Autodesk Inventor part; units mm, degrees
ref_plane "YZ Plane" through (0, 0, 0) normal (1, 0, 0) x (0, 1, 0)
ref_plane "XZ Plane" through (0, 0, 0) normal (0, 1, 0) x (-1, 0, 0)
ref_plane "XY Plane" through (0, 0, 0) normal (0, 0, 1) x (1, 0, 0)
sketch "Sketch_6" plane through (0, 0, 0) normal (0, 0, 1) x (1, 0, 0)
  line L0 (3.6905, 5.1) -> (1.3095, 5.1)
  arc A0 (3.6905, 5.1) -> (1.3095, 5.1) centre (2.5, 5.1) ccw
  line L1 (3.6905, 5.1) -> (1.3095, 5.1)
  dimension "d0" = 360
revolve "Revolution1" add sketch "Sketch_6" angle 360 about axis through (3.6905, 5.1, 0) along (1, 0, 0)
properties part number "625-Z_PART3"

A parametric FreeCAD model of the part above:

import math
import FreeCAD as App
import Part
import Sketcher

V = App.Vector

doc = App.newDocument("Part")
body = doc.addObject("PartDesign::Body", "Body")

sketch1 = doc.addObject("Sketcher::SketchObject", "Sketch")
body.addObject(sketch1)
sketch1.AttachmentSupport = (doc.XY_Plane, [""])
sketch1.MapMode = "FlatFace"
sketch1.addGeometry(Part.LineSegment(V(1.3, 5.1, 0), V(3.7, 5.1, 0)), False)
sketch1.addGeometry(Part.ArcOfCircle(Part.Circle(V(2.5, 5.1, 0), V(0, 0, 1), 1.2), math.radians(0), math.radians(180)), False)
sketch1.addGeometry(Part.LineSegment(V(1.3, 5.1, 0), V(3.7, 5.1, 0)), True)
sketch1.addConstraint(Sketcher.Constraint("Coincident", 0, 1, 1, 2))
sketch1.addConstraint(Sketcher.Constraint("Coincident", 1, 1, 0, 2))
sketch1.addConstraint(Sketcher.Constraint("Horizontal", 0))
sketch1.addConstraint(Sketcher.Constraint("Horizontal", 2))
sketch1.addConstraint(Sketcher.Constraint("Coincident", 2, 1, 0, 1))
sketch1.addConstraint(Sketcher.Constraint("Horizontal", 1, 3, 0, 1))
sketch1.addConstraint(Sketcher.Constraint("Equal", 0, 2))
sketch1.addConstraint(Sketcher.Constraint("DistanceX", -1, 1, 1, 3, 2.5))
sketch1.addConstraint(Sketcher.Constraint("DistanceY", -1, 1, 1, 3, 5.1))
sketch1.addConstraint(Sketcher.Constraint("Radius", 1, 1.1905))
revolution = doc.addObject("PartDesign::Revolution", "Revolution")
body.addObject(revolution)
revolution.Profile = sketch1
revolution.ReferenceAxis = (sketch1, ["Axis0"])
revolution.Angle = 360

doc.recompute()
